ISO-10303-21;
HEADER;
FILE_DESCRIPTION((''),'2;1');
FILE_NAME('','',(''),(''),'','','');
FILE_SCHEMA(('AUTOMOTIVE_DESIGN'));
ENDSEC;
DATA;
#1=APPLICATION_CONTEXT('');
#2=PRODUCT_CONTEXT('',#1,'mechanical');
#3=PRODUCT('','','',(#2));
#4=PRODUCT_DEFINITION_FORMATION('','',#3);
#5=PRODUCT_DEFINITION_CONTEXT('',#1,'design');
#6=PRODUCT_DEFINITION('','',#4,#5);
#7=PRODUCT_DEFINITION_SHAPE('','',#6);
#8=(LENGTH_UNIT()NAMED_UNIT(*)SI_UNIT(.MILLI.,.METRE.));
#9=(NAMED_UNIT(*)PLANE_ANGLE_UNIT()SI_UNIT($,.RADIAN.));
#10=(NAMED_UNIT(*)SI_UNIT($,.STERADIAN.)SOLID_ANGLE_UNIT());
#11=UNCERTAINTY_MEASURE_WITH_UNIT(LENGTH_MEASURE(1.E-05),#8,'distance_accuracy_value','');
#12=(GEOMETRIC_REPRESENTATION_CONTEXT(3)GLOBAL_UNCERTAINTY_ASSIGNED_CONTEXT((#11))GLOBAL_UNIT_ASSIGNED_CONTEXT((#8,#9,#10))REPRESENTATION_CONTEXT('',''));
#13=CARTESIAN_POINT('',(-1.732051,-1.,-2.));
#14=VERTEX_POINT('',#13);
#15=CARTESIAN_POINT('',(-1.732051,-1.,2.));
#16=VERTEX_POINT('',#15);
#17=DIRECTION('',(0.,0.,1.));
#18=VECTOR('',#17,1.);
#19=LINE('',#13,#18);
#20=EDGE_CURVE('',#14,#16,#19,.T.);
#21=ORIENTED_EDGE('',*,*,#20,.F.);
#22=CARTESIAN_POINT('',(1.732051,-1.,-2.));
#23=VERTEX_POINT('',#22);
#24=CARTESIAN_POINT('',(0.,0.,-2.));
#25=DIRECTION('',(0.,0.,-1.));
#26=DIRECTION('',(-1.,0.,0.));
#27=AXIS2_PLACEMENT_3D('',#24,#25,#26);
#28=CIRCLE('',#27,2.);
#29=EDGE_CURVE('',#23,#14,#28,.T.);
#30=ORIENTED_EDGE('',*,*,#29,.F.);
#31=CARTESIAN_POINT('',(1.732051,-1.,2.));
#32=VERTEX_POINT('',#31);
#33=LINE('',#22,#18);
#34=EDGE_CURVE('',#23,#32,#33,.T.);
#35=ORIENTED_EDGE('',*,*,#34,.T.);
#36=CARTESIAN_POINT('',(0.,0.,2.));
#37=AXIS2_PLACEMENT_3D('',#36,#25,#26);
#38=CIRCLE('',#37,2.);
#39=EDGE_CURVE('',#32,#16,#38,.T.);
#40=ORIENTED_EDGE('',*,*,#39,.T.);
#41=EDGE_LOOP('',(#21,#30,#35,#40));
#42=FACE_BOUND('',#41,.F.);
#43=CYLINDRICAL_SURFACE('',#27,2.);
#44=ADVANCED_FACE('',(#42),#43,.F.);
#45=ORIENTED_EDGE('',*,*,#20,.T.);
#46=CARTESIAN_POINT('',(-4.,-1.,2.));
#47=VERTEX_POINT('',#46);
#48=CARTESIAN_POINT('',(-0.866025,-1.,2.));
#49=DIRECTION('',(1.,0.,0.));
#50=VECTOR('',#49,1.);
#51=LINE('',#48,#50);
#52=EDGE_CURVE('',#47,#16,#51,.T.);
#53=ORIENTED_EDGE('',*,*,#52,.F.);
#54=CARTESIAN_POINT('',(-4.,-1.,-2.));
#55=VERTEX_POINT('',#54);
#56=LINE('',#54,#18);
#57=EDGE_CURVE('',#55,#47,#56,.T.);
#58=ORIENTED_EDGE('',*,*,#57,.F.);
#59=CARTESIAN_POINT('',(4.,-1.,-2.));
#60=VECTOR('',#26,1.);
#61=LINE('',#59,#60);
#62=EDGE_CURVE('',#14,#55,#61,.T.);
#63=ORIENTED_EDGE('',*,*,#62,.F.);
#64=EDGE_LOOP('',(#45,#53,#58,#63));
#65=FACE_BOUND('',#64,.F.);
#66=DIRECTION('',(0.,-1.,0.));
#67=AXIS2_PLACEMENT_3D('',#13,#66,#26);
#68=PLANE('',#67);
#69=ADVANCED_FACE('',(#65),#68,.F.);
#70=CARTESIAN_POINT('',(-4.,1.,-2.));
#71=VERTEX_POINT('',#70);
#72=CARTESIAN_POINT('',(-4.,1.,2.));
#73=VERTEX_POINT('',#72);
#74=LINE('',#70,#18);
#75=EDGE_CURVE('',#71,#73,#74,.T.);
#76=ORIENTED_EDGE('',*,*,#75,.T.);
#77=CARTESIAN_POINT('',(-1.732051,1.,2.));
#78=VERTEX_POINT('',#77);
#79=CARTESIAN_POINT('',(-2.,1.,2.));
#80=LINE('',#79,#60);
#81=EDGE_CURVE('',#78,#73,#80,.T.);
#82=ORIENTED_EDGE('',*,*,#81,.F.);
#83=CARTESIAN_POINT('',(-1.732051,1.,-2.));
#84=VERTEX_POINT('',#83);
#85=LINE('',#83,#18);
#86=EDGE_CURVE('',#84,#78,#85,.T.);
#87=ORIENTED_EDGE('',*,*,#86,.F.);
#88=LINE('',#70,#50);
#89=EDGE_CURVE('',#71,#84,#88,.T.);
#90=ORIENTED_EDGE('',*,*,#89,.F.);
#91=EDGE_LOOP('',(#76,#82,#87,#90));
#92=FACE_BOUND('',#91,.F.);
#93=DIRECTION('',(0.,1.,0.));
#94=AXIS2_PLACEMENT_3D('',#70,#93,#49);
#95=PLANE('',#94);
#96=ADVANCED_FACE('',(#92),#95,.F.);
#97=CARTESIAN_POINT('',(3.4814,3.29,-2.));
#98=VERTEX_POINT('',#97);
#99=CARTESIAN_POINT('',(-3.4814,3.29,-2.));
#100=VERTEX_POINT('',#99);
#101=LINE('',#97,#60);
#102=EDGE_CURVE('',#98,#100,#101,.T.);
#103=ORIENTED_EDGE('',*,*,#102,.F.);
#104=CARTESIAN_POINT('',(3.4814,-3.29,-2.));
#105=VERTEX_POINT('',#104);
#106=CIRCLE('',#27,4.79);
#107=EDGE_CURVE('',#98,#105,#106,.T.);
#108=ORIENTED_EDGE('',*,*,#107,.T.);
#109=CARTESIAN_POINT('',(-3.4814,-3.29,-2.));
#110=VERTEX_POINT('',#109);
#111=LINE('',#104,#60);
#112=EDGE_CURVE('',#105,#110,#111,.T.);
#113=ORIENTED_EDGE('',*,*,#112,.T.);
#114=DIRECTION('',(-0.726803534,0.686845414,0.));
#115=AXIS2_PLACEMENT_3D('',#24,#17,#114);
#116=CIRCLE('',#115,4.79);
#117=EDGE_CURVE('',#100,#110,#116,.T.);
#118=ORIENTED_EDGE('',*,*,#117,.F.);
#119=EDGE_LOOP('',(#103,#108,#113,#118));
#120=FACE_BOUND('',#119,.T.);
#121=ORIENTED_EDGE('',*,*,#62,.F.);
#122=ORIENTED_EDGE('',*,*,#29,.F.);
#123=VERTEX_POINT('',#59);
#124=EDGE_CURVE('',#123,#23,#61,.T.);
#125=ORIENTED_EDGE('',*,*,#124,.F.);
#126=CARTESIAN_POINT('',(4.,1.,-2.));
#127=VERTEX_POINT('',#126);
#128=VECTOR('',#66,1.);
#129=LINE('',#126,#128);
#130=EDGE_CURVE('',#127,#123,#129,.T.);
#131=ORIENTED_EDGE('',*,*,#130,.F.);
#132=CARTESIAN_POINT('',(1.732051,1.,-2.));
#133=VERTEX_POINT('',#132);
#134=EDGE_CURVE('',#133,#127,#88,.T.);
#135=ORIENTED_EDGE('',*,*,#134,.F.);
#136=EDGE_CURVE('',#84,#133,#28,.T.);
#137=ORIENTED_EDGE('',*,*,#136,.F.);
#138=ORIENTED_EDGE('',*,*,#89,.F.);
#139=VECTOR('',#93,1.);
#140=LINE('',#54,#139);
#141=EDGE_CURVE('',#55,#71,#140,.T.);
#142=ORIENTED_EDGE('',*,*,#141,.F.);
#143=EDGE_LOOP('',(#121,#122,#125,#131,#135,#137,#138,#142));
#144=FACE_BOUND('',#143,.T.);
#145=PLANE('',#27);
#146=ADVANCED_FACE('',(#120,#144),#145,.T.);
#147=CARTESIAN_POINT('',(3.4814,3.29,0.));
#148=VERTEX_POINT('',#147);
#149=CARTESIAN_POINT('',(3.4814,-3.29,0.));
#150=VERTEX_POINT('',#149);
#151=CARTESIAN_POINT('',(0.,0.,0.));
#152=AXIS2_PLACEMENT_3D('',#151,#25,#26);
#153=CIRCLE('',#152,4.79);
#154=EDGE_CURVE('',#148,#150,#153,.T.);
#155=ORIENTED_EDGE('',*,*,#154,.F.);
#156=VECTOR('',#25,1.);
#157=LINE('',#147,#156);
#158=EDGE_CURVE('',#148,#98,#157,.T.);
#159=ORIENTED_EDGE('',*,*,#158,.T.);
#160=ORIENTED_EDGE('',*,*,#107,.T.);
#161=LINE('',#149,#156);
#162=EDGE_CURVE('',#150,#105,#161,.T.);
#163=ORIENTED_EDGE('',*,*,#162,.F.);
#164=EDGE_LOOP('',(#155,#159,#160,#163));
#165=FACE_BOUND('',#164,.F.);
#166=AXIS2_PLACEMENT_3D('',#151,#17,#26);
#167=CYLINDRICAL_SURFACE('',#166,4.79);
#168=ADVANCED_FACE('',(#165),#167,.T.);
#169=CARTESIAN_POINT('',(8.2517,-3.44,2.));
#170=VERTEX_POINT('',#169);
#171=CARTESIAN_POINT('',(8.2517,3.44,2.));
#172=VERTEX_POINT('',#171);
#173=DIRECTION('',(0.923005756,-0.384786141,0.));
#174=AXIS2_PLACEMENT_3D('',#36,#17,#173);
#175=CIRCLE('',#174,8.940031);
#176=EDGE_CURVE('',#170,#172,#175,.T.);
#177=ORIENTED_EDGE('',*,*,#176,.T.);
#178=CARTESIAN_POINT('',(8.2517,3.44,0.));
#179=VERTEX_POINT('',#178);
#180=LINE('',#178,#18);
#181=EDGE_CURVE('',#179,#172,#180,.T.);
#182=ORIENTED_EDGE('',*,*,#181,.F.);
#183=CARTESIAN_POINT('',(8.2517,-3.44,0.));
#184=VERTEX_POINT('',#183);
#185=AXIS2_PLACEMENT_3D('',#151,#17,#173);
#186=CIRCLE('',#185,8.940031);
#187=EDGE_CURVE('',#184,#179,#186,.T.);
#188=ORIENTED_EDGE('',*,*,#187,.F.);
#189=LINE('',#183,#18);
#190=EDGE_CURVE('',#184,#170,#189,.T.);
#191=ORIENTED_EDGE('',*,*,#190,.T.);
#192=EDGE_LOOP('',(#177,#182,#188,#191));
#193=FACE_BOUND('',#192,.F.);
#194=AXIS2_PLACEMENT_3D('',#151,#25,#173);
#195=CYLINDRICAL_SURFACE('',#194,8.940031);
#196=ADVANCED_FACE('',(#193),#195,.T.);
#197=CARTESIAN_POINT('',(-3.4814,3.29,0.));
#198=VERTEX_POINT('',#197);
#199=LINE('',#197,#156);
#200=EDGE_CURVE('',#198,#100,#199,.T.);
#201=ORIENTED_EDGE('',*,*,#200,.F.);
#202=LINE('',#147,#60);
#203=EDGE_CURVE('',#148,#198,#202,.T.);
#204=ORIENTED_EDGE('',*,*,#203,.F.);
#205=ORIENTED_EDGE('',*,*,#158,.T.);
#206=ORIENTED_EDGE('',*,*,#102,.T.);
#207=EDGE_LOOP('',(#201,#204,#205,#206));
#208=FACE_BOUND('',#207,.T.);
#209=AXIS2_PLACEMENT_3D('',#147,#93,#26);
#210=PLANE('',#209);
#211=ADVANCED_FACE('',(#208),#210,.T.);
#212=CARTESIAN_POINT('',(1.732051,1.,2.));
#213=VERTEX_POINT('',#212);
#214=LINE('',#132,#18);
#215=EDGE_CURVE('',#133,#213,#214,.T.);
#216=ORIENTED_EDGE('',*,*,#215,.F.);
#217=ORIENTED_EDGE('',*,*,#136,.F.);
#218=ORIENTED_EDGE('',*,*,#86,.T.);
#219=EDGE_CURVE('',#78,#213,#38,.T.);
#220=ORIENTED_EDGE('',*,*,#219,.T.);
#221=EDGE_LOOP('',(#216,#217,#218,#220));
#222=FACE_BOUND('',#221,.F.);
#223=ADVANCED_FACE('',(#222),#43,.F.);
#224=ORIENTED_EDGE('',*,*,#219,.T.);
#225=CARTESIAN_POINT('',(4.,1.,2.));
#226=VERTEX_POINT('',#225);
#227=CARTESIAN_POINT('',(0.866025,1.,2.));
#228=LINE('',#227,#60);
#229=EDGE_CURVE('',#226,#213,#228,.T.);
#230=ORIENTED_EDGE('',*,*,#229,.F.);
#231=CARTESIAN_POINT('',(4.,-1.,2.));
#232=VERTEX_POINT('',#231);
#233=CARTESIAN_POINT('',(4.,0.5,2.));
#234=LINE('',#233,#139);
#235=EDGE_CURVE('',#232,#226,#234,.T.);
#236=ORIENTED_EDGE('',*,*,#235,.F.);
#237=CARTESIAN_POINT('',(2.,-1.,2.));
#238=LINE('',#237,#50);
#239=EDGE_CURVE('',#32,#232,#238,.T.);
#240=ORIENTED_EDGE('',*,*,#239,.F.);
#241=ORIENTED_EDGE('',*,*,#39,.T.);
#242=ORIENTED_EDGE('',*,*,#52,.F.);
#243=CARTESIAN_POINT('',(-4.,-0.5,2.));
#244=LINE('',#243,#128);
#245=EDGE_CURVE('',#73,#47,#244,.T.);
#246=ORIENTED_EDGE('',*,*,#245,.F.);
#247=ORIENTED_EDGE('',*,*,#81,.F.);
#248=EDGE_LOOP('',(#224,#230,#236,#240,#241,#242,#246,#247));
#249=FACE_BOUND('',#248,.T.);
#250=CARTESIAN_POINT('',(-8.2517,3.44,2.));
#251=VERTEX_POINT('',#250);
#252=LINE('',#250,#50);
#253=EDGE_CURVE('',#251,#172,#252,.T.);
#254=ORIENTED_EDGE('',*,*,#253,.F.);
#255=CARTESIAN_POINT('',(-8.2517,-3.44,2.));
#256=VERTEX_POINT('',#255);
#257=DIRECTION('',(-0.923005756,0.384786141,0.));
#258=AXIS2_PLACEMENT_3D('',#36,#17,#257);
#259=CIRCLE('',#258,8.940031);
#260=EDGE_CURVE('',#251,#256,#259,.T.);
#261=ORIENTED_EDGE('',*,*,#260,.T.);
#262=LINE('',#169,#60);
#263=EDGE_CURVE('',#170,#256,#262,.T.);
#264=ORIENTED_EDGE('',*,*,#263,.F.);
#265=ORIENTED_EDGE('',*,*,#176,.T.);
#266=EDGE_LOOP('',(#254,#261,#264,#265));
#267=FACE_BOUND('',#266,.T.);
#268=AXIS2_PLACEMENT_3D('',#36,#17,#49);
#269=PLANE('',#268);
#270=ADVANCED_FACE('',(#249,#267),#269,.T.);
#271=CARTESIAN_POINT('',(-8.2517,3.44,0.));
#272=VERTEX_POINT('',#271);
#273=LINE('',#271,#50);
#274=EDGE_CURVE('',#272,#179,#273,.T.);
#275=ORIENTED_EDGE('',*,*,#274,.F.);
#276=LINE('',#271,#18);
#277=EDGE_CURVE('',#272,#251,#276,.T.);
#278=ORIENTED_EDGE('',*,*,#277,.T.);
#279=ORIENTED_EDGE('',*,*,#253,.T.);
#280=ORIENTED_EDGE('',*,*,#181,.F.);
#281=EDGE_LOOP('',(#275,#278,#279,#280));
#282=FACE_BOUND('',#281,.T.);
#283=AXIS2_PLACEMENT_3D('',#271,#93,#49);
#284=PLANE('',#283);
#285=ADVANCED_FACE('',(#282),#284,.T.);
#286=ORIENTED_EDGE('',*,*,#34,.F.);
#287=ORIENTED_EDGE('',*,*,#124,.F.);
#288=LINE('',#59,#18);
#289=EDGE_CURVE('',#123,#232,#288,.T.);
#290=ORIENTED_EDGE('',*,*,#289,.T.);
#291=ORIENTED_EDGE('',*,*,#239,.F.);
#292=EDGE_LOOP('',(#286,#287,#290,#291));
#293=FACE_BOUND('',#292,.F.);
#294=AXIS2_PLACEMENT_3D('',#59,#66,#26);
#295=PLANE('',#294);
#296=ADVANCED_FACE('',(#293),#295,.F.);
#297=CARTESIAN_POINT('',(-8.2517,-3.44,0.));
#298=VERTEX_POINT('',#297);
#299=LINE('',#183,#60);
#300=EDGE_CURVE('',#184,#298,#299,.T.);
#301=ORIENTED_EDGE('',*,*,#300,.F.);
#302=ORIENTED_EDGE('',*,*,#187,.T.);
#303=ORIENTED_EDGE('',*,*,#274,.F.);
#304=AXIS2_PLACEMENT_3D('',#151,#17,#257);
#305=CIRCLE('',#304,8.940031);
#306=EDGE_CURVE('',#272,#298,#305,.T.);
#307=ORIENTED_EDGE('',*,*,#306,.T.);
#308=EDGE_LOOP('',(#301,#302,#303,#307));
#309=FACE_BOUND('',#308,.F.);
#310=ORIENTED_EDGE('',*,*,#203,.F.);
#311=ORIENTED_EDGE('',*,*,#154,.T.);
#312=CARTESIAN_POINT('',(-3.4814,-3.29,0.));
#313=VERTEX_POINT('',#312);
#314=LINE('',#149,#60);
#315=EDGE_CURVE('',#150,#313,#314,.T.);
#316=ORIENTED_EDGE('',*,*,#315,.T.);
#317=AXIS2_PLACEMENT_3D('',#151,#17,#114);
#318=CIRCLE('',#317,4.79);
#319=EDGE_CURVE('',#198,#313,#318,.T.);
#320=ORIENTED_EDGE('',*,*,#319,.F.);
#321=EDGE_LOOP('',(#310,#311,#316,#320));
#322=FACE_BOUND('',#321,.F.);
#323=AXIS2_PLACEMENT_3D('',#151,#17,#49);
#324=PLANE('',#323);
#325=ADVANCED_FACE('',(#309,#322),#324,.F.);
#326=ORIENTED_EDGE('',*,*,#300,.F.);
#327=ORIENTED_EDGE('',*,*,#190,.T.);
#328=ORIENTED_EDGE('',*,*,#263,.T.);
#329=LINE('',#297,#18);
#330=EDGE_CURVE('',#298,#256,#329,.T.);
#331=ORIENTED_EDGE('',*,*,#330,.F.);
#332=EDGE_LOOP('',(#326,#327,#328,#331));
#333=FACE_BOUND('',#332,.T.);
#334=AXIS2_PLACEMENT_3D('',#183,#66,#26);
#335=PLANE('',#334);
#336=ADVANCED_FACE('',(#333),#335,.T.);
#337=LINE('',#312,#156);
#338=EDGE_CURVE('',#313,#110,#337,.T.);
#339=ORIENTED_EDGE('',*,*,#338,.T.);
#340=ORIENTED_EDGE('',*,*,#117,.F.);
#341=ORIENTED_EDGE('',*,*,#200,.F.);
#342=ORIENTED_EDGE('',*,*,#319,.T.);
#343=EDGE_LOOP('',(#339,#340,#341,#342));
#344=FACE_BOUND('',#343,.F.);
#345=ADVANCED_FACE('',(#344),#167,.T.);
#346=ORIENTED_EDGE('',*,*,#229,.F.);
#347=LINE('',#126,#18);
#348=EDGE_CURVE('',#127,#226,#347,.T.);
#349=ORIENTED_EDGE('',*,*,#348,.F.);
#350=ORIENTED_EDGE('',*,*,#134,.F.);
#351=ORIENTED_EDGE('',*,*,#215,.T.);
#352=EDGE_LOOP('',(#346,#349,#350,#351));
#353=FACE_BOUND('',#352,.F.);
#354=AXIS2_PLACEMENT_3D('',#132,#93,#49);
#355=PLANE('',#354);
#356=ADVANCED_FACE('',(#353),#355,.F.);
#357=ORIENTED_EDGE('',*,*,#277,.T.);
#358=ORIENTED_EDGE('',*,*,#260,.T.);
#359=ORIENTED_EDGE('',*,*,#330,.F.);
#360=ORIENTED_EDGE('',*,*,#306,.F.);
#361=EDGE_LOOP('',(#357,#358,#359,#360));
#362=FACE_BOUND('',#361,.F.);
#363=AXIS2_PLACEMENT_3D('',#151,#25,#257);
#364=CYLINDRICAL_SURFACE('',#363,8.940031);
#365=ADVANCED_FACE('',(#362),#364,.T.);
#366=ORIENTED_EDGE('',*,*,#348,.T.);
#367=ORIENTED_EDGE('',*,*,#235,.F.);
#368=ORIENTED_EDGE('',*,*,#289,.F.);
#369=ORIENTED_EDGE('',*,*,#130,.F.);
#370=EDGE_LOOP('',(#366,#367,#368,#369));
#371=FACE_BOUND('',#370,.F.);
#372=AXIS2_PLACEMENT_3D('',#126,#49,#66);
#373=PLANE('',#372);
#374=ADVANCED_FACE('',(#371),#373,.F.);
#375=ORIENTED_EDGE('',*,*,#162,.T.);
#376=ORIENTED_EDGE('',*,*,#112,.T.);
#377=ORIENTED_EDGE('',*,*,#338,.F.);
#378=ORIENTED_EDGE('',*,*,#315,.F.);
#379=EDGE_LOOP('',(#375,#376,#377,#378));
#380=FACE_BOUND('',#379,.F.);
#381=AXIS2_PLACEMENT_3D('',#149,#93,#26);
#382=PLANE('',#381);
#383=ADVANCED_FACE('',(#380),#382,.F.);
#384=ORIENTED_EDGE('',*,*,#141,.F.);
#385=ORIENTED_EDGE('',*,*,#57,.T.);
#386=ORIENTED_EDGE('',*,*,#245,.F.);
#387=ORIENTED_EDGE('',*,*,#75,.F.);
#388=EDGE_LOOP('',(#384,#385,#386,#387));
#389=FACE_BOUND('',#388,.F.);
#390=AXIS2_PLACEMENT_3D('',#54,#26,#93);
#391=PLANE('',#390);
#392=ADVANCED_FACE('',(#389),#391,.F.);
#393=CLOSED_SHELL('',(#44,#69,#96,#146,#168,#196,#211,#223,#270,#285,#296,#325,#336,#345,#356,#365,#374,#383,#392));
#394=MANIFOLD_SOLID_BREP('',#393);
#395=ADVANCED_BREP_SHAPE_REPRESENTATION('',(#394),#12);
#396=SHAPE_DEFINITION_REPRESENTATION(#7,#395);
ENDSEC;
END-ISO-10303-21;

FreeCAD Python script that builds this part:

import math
import FreeCAD as App
import Part
import Sketcher
from FreeCAD import Vector

doc = App.newDocument("Part")
params = doc.addObject("Spreadsheet::Sheet", "Params")
for row, (alias, value) in enumerate([
    ("sketch1_radius", "8.94 mm"),
    ("pad1_length", "2 mm"),
    ("sketch2_radius", "4.79 mm"),
    ("pad2_length", "2 mm"),
    ("sketch3_radius", "2 mm"),
    ("sketch3_height", "2 mm"),
], start=1):
    params.set(f"A{row}", alias)
    params.set(f"B{row}", "=" + value)
    params.setAlias(f"B{row}", alias)

body = doc.addObject("PartDesign::Body", "Body")

# Sketch on XY plane
sketch1 = body.newObject("Sketcher::SketchObject", "Sketch")
sketch1.AttachmentSupport = (doc.getObject("XY_Plane"), [""])
sketch1.MapMode = "FlatFace"
sketch1.addGeometry(Part.LineSegment(Vector(8, 3, 0), Vector(-8, 3, 0)), False)
sketch1.addGeometry(Part.ArcOfCircle(Part.Circle(Vector(0, 0, 0), Vector(0, 0, 1), 9), math.radians(157), math.radians(203)), False)
sketch1.addGeometry(Part.LineSegment(Vector(-8, -3, 0), Vector(8, -3, 0)), False)
sketch1.addGeometry(Part.ArcOfCircle(Part.Circle(Vector(0, 0, 0), Vector(0, 0, 1), 9), math.radians(-23), math.radians(23)), False)
sketch1.addConstraint(Sketcher.Constraint("Coincident", 0, 2, 1, 1))
sketch1.addConstraint(Sketcher.Constraint("Coincident", 1, 2, 2, 1))
sketch1.addConstraint(Sketcher.Constraint("Coincident", 2, 2, 3, 1))
sketch1.addConstraint(Sketcher.Constraint("Coincident", 3, 2, 0, 1))
sketch1.addConstraint(Sketcher.Constraint("Horizontal", 0))
sketch1.addConstraint(Sketcher.Constraint("Horizontal", 2))
sketch1.addConstraint(Sketcher.Constraint("Coincident", 1, 3, -1, 1))
sketch1.addConstraint(Sketcher.Constraint("Coincident", 3, 3, -1, 1))
sketch1.addConstraint(Sketcher.Constraint("Equal", 1, 3))
sketch1.addConstraint(Sketcher.Constraint("Vertical", 0, 2, 1, 2))
sketch1.addConstraint(Sketcher.Constraint("Radius", 1, 8.94))
sketch1.addConstraint(Sketcher.Constraint("DistanceY", -1, 1, 0, 2, 3.44))
sketch1.setExpression("Constraints[10]", "Params.sketch1_radius")
pad1 = body.newObject("PartDesign::Pad", "Pad")
pad1.Profile = sketch1
pad1.setExpression("Length", "Params.pad1_length")

# Sketch on XY plane
sketch2 = body.newObject("Sketcher::SketchObject", "Sketch001")
sketch2.AttachmentSupport = (doc.getObject("XY_Plane"), [""])
sketch2.MapMode = "FlatFace"
sketch2.addGeometry(Part.ArcOfCircle(Part.Circle(Vector(0, 0, 0), Vector(0, 0, 1), 4.8), math.radians(137), math.radians(223)), False)
sketch2.addGeometry(Part.LineSegment(Vector(-3.5, 3.3, 0), Vector(3.5, 3.3, 0)), False)
sketch2.addGeometry(Part.ArcOfCircle(Part.Circle(Vector(0, 0, 0), Vector(0, 0, 1), 4.8), math.radians(-43), math.radians(43)), False)
sketch2.addGeometry(Part.LineSegment(Vector(3.5, -3.3, 0), Vector(-3.5, -3.3, 0)), False)
sketch2.addConstraint(Sketcher.Constraint("Coincident", 0, 1, 1, 1))
sketch2.addConstraint(Sketcher.Constraint("Coincident", 1, 2, 2, 2))
sketch2.addConstraint(Sketcher.Constraint("Coincident", 2, 1, 3, 1))
sketch2.addConstraint(Sketcher.Constraint("Coincident", 3, 2, 0, 2))
sketch2.addConstraint(Sketcher.Constraint("Horizontal", 1))
sketch2.addConstraint(Sketcher.Constraint("Horizontal", 3))
sketch2.addConstraint(Sketcher.Constraint("Coincident", 0, 3, -1, 1))
sketch2.addConstraint(Sketcher.Constraint("Coincident", 2, 3, -1, 1))
sketch2.addConstraint(Sketcher.Constraint("Equal", 0, 2))
sketch2.addConstraint(Sketcher.Constraint("Vertical", 1, 2, 2, 1))
sketch2.addConstraint(Sketcher.Constraint("Radius", 0, 4.79))
sketch2.addConstraint(Sketcher.Constraint("DistanceY", -1, 1, 0, 1, 3.29))
sketch2.setExpression("Constraints[10]", "Params.sketch2_radius")
pad2 = body.newObject("PartDesign::Pad", "Pad001")
pad2.Profile = sketch2
pad2.setExpression("Length", "Params.pad2_length")
pad2.Reversed = True

# Sketch on XY plane
sketch3 = body.newObject("Sketcher::SketchObject", "Sketch002")
sketch3.AttachmentSupport = (doc.getObject("XY_Plane"), [""])
sketch3.MapMode = "FlatFace"
sketch3.AttachmentOffset = App.Placement(Vector(0, 0, -2), App.Rotation())
sketch3.addGeometry(Part.LineSegment(Vector(-1.7, -1, 0), Vector(-4, -1, 0)), False)
sketch3.addGeometry(Part.LineSegment(Vector(-4, -1, 0), Vector(-4, 1, 0)), False)
sketch3.addGeometry(Part.LineSegment(Vector(-4, 1, 0), Vector(-1.7, 1, 0)), False)
sketch3.addGeometry(Part.ArcOfCircle(Part.Circle(Vector(0, 0, 0), Vector(0, 0, 1), 2), math.radians(30), math.radians(150)), False)
sketch3.addGeometry(Part.LineSegment(Vector(1.7, 1, 0), Vector(4, 1, 0)), False)
sketch3.addGeometry(Part.LineSegment(Vector(4, 1, 0), Vector(4, -1, 0)), False)
sketch3.addGeometry(Part.LineSegment(Vector(4, -1, 0), Vector(1.7, -1, 0)), False)
sketch3.addGeometry(Part.ArcOfCircle(Part.Circle(Vector(0, 0, 0), Vector(0, 0, 1), 2), math.radians(-150), math.radians(-30)), False)
sketch3.addConstraint(Sketcher.Constraint("Coincident", 0, 2, 1, 1))
sketch3.addConstraint(Sketcher.Constraint("Coincident", 1, 2, 2, 1))
sketch3.addConstraint(Sketcher.Constraint("Coincident", 2, 2, 3, 2))
sketch3.addConstraint(Sketcher.Constraint("Coincident", 3, 1, 4, 1))
sketch3.addConstraint(Sketcher.Constraint("Coincident", 4, 2, 5, 1))
sketch3.addConstraint(Sketcher.Constraint("Coincident", 5, 2, 6, 1))
sketch3.addConstraint(Sketcher.Constraint("Coincident", 6, 2, 7, 2))
sketch3.addConstraint(Sketcher.Constraint("Coincident", 7, 1, 0, 1))
sketch3.addConstraint(Sketcher.Constraint("Horizontal", 0))
sketch3.addConstraint(Sketcher.Constraint("Vertical", 1))
sketch3.addConstraint(Sketcher.Constraint("Horizontal", 2))
sketch3.addConstraint(Sketcher.Constraint("Horizontal", 4))
sketch3.addConstraint(Sketcher.Constraint("Vertical", 5))
sketch3.addConstraint(Sketcher.Constraint("Horizontal", 6))
sketch3.addConstraint(Sketcher.Constraint("Coincident", 3, 3, -1, 1))
sketch3.addConstraint(Sketcher.Constraint("Coincident", 7, 3, -1, 1))
sketch3.addConstraint(Sketcher.Constraint("Equal", 3, 7))
sketch3.addConstraint(Sketcher.Constraint("Symmetric", 0, 2, 4, 2, -1, 1))
sketch3.addConstraint(Sketcher.Constraint("Horizontal", 2, 2, 3, 1))
sketch3.addConstraint(Sketcher.Constraint("Horizontal", 0, 2, 5, 2))
sketch3.addConstraint(Sketcher.Constraint("Radius", 3, 2.0))
sketch3.addConstraint(Sketcher.Constraint("DistanceX", 0, 2, -1, 1, 4.0))
sketch3.addConstraint(Sketcher.Constraint("DistanceY", 1, 1, 1, 2, 2.0))
sketch3.setExpression("Constraints[20]", "Params.sketch3_radius")
sketch3.setExpression("Constraints[22]", "Params.sketch3_height")
pocket1 = body.newObject("PartDesign::Pocket", "Pocket")
pocket1.Profile = sketch3
pocket1.Type = "ThroughAll"
pocket1.Reversed = True

doc.recompute()
